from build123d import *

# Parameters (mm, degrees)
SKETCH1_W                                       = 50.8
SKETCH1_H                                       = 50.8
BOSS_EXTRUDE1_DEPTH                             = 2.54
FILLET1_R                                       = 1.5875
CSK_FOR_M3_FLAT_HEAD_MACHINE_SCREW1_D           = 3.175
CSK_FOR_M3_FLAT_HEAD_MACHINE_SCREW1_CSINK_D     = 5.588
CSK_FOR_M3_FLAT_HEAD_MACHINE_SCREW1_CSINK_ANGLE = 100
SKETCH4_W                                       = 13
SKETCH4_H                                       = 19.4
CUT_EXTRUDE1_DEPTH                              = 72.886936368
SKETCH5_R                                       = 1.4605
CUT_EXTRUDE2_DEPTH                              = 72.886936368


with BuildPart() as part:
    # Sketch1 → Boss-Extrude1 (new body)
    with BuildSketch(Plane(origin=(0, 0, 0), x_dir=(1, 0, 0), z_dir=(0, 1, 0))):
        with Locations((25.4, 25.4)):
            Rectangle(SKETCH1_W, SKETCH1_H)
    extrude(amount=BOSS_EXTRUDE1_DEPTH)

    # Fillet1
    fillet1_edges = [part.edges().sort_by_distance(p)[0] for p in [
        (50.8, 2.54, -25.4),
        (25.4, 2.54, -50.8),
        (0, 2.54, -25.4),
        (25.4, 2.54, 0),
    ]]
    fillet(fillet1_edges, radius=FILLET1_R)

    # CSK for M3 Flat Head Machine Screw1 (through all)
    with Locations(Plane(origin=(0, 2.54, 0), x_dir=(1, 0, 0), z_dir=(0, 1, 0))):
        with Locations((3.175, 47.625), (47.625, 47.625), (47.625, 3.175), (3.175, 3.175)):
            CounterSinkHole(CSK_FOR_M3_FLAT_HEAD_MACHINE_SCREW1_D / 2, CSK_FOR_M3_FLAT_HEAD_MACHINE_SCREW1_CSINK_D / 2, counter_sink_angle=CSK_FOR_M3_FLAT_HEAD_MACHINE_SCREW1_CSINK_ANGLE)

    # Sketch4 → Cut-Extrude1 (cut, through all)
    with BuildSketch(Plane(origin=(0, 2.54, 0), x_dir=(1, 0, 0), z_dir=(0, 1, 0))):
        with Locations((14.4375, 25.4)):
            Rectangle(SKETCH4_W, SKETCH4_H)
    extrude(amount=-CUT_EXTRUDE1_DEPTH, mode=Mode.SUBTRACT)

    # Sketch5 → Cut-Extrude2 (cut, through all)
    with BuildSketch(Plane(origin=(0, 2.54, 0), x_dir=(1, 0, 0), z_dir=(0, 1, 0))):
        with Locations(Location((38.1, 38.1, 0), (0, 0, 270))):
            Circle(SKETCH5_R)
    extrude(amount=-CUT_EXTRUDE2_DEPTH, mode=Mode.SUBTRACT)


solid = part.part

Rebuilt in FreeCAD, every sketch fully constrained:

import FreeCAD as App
import Part
import Sketcher
from FreeCAD import Vector
Q = App.Units.Quantity


def edges_at(feature, points):
    """Names of the edges that pass closest to the given points."""
    edges = feature.Shape.Edges
    near = lambda p: min(range(len(edges)), key=lambda i: edges[i].distToShape(Part.Vertex(*p))[0])
    return sorted({f"Edge{near(p) + 1}" for p in points})

doc = App.newDocument("Part")
body = doc.addObject("PartDesign::Body", "Body")

# Sketch on XZ plane
sketch1 = body.newObject("Sketcher::SketchObject", "Sketch")
sketch1.AttachmentSupport = (doc.getObject("XZ_Plane"), [""])
sketch1.MapMode = "FlatFace"
sketch1.addGeometry([
    Part.LineSegment(Vector(0, -51, 0), Vector(0, 0, 0)),
    Part.LineSegment(Vector(0, 0, 0), Vector(51, 0, 0)),
    Part.LineSegment(Vector(51, 0, 0), Vector(51, -51, 0)),
    Part.LineSegment(Vector(51, -51, 0), Vector(0, -51, 0)),
], False)
sketch1.addConstraint([
    Sketcher.Constraint("Coincident", 0, 2, 1, 1),
    Sketcher.Constraint("Coincident", 1, 2, 2, 1),
    Sketcher.Constraint("Coincident", 2, 2, 3, 1),
    Sketcher.Constraint("Coincident", 3, 2, 0, 1),
    Sketcher.Constraint("Vertical", 0),
    Sketcher.Constraint("Horizontal", 1),
    Sketcher.Constraint("Vertical", 2),
    Sketcher.Constraint("Horizontal", 3),
    Sketcher.Constraint("Coincident", 0, 2, -1, 1),
    Sketcher.Constraint("Equal", 3, 0),
    Sketcher.Constraint("DistanceX", 1, 1, 1, 2, Q("2 in")),
])
pad1 = body.newObject("PartDesign::Pad", "Pad")
pad1.Profile = sketch1
pad1.Length = Q("0.1 in")
pad1.Reversed = True
doc.recompute()

fillet = body.newObject("PartDesign::Fillet", "Fillet")
fillet.Base = (pad1, edges_at(pad1, [
    (50.8, 2.54, -25.4),
    (25.4, 2.54, -50.8),
    (0, 2.54, -25.4),
    (25.4, 2.54, 0),
]))
fillet.Radius = Q("0.0625 in")

# Sketch on XZ plane
sketch2 = body.newObject("Sketcher::SketchObject", "Sketch001")
sketch2.AttachmentSupport = (doc.getObject("XZ_Plane"), [""])
sketch2.MapMode = "FlatFace"
sketch2.AttachmentOffset = App.Placement(Vector(0, 0, -0.1 * 25.4), App.Rotation())
sketch2.addGeometry([
    Part.Circle(Vector(3.2, -47.6, 0), Vector(0, 0, 1), 1.6),
    Part.Circle(Vector(47.6, -47.6, 0), Vector(0, 0, 1), 1.6),
    Part.Circle(Vector(47.6, -3.2, 0), Vector(0, 0, 1), 1.6),
    Part.Circle(Vector(3.2, -3.2, 0), Vector(0, 0, 1), 1.6),
], False)
sketch2.addConstraint([
    Sketcher.Constraint("Equal", 0, 1),
    Sketcher.Constraint("Equal", 1, 2),
    Sketcher.Constraint("Equal", 2, 3),
    Sketcher.Constraint("Horizontal", 0, 3, 1, 3),
    Sketcher.Constraint("Horizontal", 2, 3, 3, 3),
    Sketcher.Constraint("Vertical", 1, 3, 2, 3),
    Sketcher.Constraint("Vertical", 0, 3, 3, 3),
    Sketcher.Constraint("Diameter", 0, Q("0.125 in")),
    Sketcher.Constraint("DistanceX", 0, 3, 1, 3, Q("1.75 in")),
    Sketcher.Constraint("DistanceY", 1, 3, 2, 3, Q("1.75 in")),
    Sketcher.Constraint("DistanceX", -1, 1, 0, 3, Q("0.125 in")),
    Sketcher.Constraint("DistanceY", 0, 3, -1, 1, Q("1.875 in")),
])
doc.recompute()
hole = body.newObject("PartDesign::Hole", "Hole")
hole.Profile = sketch2
hole.ThreadType = "None"
hole.Diameter = Q("0.125 in")
hole.DepthType = "ThroughAll"
hole.HoleCutType = "Countersink"
hole.HoleCutDiameter = Q("0.22 in")
hole.HoleCutCountersinkAngle = 100
hole.Reversed = True

# Sketch on XZ plane
sketch3 = body.newObject("Sketcher::SketchObject", "Sketch002")
sketch3.AttachmentSupport = (doc.getObject("XZ_Plane"), [""])
sketch3.MapMode = "FlatFace"
sketch3.AttachmentOffset = App.Placement(Vector(0, 0, -0.1 * 25.4), App.Rotation())
sketch3.addGeometry([
    Part.LineSegment(Vector(8, -35, 0), Vector(8, -16, 0)),
    Part.LineSegment(Vector(8, -16, 0), Vector(21, -16, 0)),
    Part.LineSegment(Vector(21, -16, 0), Vector(21, -35, 0)),
    Part.LineSegment(Vector(21, -35, 0), Vector(8, -35, 0)),
], False)
sketch3.addConstraint([
    Sketcher.Constraint("Coincident", 0, 2, 1, 1),
    Sketcher.Constraint("Coincident", 1, 2, 2, 1),
    Sketcher.Constraint("Coincident", 2, 2, 3, 1),
    Sketcher.Constraint("Coincident", 3, 2, 0, 1),
    Sketcher.Constraint("Vertical", 0),
    Sketcher.Constraint("Horizontal", 1),
    Sketcher.Constraint("Vertical", 2),
    Sketcher.Constraint("Horizontal", 3),
    Sketcher.Constraint("DistanceX", -1, 1, 0, 2, Q("0.3125 in")),
    Sketcher.Constraint("DistanceX", 1, 1, 1, 2, Q("13 mm")),
    Sketcher.Constraint("DistanceY", 0, 1, 0, 2, Q("19.4 mm")),
    Sketcher.Constraint("DistanceY", 0, 2, -1, 1, Q("15.7 mm")),
])
pocket1 = body.newObject("PartDesign::Pocket", "Pocket")
pocket1.Profile = sketch3
pocket1.Type = "ThroughAll"
pocket1.Reversed = True

# Sketch on XZ plane
sketch4 = body.newObject("Sketcher::SketchObject", "Sketch003")
sketch4.AttachmentSupport = (doc.getObject("XZ_Plane"), [""])
sketch4.MapMode = "FlatFace"
sketch4.AttachmentOffset = App.Placement(Vector(0, 0, -0.1 * 25.4), App.Rotation())
sketch4.addGeometry(Part.Circle(Vector(38.1, -38.1, 0), Vector(0, 0, 1), 1.5), False)
sketch4.addConstraint([
    Sketcher.Constraint("Diameter", 0, Q("0.115 in")),
    Sketcher.Constraint("DistanceX", -1, 1, 0, 3, Q("1.5 in")),
    Sketcher.Constraint("DistanceY", 0, 3, -1, 1, Q("1.5 in")),
])
pocket2 = body.newObject("PartDesign::Pocket", "Pocket001")
pocket2.Profile = sketch4
pocket2.Type = "ThroughAll"
pocket2.Reversed = True

doc.recompute()
